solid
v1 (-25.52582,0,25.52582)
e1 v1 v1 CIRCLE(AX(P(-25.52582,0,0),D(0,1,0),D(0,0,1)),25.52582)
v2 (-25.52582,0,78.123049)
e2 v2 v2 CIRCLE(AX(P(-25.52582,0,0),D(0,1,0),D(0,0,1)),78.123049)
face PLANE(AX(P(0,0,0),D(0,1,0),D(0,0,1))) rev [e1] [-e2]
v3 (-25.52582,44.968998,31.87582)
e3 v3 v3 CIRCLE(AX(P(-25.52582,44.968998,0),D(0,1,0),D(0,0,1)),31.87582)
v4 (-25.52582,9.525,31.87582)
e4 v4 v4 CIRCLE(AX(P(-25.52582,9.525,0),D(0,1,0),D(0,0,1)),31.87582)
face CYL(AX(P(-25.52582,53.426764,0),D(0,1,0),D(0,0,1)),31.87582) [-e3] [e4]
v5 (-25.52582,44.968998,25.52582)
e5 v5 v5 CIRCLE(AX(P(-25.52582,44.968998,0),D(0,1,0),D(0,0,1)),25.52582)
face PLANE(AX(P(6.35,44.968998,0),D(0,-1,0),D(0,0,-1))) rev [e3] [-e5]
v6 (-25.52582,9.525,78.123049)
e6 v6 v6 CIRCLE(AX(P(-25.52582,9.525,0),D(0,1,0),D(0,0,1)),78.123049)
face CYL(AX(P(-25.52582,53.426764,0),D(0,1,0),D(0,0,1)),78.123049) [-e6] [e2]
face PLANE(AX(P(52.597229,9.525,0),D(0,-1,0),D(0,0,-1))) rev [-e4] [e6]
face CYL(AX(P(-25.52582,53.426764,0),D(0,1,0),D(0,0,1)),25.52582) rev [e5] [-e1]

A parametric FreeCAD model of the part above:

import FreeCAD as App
import Part
import Sketcher
Q = App.Units.Quantity


def add_polygon(sketch, points):
    """Adds a closed chain of lines whose ends are joined by coincident constraints."""
    first, n = sketch.GeometryCount, len(points)
    for a, b in zip(points, points[1:] + points[:1]):
        sketch.addGeometry(Part.LineSegment(App.Vector(*a, 0), App.Vector(*b, 0)), False)
    for i in range(n):
        sketch.addConstraint(Sketcher.Constraint("Coincident", first + i, 2, first + (i + 1) % n, 1))

doc = App.newDocument("Part")
body = doc.addObject("PartDesign::Body", "Body")

# Sketch on XY plane
sketch1 = body.newObject("Sketcher::SketchObject", "Sketch")
sketch1.AttachmentSupport = (doc.getObject("XY_Plane"), [""])
sketch1.MapMode = "FlatFace"
add_polygon(sketch1, [(0, 0), (52.597229, 0), (52.597229, 9.525), (6.35, 9.525), (6.35, 44.968998), (0, 44.968998)])  # lines 0-5
sketch1.addGeometry(Part.LineSegment(App.Vector(-25.52582, 44.968998, 0), App.Vector(-25.52582, 0, 0)), True)  # axis
sketch1.addConstraint(Sketcher.Constraint("Horizontal", 0))
sketch1.addConstraint(Sketcher.Constraint("Vertical", 1))
sketch1.addConstraint(Sketcher.Constraint("Horizontal", 2))
sketch1.addConstraint(Sketcher.Constraint("Vertical", 3))
sketch1.addConstraint(Sketcher.Constraint("Horizontal", 4))
sketch1.addConstraint(Sketcher.Constraint("Vertical", 5))
sketch1.addConstraint(Sketcher.Constraint("Vertical", 6))
sketch1.addConstraint(Sketcher.Constraint("Coincident", 5, 2, -1, 1))
sketch1.addConstraint(Sketcher.Constraint("PointOnObject", 6, 2, -1))
sketch1.addConstraint(Sketcher.Constraint("Horizontal", 4, 2, 6, 1))
sketch1.addConstraint(Sketcher.Constraint("DistanceX", 4, 2, 4, 1, Q("0.25 in")))
sketch1.addConstraint(Sketcher.Constraint("DistanceY", 1, 1, 1, 2, Q("0.375 in")))
sketch1.addConstraint(Sketcher.Constraint("DistanceY", 3, 1, 3, 2, Q("35.443998 mm")))
sketch1.addConstraint(Sketcher.Constraint("DistanceX", 0, 1, 0, 2, Q("52.597229 mm")))
sketch1.addConstraint(Sketcher.Constraint("DistanceX", 6, 1, -1, 1, Q("25.52582 mm")))
revolution = body.newObject("PartDesign::Revolution", "Revolution")
revolution.Profile = sketch1
revolution.ReferenceAxis = (sketch1, ["Axis0"])
revolution.Angle = 360

doc.recompute()
